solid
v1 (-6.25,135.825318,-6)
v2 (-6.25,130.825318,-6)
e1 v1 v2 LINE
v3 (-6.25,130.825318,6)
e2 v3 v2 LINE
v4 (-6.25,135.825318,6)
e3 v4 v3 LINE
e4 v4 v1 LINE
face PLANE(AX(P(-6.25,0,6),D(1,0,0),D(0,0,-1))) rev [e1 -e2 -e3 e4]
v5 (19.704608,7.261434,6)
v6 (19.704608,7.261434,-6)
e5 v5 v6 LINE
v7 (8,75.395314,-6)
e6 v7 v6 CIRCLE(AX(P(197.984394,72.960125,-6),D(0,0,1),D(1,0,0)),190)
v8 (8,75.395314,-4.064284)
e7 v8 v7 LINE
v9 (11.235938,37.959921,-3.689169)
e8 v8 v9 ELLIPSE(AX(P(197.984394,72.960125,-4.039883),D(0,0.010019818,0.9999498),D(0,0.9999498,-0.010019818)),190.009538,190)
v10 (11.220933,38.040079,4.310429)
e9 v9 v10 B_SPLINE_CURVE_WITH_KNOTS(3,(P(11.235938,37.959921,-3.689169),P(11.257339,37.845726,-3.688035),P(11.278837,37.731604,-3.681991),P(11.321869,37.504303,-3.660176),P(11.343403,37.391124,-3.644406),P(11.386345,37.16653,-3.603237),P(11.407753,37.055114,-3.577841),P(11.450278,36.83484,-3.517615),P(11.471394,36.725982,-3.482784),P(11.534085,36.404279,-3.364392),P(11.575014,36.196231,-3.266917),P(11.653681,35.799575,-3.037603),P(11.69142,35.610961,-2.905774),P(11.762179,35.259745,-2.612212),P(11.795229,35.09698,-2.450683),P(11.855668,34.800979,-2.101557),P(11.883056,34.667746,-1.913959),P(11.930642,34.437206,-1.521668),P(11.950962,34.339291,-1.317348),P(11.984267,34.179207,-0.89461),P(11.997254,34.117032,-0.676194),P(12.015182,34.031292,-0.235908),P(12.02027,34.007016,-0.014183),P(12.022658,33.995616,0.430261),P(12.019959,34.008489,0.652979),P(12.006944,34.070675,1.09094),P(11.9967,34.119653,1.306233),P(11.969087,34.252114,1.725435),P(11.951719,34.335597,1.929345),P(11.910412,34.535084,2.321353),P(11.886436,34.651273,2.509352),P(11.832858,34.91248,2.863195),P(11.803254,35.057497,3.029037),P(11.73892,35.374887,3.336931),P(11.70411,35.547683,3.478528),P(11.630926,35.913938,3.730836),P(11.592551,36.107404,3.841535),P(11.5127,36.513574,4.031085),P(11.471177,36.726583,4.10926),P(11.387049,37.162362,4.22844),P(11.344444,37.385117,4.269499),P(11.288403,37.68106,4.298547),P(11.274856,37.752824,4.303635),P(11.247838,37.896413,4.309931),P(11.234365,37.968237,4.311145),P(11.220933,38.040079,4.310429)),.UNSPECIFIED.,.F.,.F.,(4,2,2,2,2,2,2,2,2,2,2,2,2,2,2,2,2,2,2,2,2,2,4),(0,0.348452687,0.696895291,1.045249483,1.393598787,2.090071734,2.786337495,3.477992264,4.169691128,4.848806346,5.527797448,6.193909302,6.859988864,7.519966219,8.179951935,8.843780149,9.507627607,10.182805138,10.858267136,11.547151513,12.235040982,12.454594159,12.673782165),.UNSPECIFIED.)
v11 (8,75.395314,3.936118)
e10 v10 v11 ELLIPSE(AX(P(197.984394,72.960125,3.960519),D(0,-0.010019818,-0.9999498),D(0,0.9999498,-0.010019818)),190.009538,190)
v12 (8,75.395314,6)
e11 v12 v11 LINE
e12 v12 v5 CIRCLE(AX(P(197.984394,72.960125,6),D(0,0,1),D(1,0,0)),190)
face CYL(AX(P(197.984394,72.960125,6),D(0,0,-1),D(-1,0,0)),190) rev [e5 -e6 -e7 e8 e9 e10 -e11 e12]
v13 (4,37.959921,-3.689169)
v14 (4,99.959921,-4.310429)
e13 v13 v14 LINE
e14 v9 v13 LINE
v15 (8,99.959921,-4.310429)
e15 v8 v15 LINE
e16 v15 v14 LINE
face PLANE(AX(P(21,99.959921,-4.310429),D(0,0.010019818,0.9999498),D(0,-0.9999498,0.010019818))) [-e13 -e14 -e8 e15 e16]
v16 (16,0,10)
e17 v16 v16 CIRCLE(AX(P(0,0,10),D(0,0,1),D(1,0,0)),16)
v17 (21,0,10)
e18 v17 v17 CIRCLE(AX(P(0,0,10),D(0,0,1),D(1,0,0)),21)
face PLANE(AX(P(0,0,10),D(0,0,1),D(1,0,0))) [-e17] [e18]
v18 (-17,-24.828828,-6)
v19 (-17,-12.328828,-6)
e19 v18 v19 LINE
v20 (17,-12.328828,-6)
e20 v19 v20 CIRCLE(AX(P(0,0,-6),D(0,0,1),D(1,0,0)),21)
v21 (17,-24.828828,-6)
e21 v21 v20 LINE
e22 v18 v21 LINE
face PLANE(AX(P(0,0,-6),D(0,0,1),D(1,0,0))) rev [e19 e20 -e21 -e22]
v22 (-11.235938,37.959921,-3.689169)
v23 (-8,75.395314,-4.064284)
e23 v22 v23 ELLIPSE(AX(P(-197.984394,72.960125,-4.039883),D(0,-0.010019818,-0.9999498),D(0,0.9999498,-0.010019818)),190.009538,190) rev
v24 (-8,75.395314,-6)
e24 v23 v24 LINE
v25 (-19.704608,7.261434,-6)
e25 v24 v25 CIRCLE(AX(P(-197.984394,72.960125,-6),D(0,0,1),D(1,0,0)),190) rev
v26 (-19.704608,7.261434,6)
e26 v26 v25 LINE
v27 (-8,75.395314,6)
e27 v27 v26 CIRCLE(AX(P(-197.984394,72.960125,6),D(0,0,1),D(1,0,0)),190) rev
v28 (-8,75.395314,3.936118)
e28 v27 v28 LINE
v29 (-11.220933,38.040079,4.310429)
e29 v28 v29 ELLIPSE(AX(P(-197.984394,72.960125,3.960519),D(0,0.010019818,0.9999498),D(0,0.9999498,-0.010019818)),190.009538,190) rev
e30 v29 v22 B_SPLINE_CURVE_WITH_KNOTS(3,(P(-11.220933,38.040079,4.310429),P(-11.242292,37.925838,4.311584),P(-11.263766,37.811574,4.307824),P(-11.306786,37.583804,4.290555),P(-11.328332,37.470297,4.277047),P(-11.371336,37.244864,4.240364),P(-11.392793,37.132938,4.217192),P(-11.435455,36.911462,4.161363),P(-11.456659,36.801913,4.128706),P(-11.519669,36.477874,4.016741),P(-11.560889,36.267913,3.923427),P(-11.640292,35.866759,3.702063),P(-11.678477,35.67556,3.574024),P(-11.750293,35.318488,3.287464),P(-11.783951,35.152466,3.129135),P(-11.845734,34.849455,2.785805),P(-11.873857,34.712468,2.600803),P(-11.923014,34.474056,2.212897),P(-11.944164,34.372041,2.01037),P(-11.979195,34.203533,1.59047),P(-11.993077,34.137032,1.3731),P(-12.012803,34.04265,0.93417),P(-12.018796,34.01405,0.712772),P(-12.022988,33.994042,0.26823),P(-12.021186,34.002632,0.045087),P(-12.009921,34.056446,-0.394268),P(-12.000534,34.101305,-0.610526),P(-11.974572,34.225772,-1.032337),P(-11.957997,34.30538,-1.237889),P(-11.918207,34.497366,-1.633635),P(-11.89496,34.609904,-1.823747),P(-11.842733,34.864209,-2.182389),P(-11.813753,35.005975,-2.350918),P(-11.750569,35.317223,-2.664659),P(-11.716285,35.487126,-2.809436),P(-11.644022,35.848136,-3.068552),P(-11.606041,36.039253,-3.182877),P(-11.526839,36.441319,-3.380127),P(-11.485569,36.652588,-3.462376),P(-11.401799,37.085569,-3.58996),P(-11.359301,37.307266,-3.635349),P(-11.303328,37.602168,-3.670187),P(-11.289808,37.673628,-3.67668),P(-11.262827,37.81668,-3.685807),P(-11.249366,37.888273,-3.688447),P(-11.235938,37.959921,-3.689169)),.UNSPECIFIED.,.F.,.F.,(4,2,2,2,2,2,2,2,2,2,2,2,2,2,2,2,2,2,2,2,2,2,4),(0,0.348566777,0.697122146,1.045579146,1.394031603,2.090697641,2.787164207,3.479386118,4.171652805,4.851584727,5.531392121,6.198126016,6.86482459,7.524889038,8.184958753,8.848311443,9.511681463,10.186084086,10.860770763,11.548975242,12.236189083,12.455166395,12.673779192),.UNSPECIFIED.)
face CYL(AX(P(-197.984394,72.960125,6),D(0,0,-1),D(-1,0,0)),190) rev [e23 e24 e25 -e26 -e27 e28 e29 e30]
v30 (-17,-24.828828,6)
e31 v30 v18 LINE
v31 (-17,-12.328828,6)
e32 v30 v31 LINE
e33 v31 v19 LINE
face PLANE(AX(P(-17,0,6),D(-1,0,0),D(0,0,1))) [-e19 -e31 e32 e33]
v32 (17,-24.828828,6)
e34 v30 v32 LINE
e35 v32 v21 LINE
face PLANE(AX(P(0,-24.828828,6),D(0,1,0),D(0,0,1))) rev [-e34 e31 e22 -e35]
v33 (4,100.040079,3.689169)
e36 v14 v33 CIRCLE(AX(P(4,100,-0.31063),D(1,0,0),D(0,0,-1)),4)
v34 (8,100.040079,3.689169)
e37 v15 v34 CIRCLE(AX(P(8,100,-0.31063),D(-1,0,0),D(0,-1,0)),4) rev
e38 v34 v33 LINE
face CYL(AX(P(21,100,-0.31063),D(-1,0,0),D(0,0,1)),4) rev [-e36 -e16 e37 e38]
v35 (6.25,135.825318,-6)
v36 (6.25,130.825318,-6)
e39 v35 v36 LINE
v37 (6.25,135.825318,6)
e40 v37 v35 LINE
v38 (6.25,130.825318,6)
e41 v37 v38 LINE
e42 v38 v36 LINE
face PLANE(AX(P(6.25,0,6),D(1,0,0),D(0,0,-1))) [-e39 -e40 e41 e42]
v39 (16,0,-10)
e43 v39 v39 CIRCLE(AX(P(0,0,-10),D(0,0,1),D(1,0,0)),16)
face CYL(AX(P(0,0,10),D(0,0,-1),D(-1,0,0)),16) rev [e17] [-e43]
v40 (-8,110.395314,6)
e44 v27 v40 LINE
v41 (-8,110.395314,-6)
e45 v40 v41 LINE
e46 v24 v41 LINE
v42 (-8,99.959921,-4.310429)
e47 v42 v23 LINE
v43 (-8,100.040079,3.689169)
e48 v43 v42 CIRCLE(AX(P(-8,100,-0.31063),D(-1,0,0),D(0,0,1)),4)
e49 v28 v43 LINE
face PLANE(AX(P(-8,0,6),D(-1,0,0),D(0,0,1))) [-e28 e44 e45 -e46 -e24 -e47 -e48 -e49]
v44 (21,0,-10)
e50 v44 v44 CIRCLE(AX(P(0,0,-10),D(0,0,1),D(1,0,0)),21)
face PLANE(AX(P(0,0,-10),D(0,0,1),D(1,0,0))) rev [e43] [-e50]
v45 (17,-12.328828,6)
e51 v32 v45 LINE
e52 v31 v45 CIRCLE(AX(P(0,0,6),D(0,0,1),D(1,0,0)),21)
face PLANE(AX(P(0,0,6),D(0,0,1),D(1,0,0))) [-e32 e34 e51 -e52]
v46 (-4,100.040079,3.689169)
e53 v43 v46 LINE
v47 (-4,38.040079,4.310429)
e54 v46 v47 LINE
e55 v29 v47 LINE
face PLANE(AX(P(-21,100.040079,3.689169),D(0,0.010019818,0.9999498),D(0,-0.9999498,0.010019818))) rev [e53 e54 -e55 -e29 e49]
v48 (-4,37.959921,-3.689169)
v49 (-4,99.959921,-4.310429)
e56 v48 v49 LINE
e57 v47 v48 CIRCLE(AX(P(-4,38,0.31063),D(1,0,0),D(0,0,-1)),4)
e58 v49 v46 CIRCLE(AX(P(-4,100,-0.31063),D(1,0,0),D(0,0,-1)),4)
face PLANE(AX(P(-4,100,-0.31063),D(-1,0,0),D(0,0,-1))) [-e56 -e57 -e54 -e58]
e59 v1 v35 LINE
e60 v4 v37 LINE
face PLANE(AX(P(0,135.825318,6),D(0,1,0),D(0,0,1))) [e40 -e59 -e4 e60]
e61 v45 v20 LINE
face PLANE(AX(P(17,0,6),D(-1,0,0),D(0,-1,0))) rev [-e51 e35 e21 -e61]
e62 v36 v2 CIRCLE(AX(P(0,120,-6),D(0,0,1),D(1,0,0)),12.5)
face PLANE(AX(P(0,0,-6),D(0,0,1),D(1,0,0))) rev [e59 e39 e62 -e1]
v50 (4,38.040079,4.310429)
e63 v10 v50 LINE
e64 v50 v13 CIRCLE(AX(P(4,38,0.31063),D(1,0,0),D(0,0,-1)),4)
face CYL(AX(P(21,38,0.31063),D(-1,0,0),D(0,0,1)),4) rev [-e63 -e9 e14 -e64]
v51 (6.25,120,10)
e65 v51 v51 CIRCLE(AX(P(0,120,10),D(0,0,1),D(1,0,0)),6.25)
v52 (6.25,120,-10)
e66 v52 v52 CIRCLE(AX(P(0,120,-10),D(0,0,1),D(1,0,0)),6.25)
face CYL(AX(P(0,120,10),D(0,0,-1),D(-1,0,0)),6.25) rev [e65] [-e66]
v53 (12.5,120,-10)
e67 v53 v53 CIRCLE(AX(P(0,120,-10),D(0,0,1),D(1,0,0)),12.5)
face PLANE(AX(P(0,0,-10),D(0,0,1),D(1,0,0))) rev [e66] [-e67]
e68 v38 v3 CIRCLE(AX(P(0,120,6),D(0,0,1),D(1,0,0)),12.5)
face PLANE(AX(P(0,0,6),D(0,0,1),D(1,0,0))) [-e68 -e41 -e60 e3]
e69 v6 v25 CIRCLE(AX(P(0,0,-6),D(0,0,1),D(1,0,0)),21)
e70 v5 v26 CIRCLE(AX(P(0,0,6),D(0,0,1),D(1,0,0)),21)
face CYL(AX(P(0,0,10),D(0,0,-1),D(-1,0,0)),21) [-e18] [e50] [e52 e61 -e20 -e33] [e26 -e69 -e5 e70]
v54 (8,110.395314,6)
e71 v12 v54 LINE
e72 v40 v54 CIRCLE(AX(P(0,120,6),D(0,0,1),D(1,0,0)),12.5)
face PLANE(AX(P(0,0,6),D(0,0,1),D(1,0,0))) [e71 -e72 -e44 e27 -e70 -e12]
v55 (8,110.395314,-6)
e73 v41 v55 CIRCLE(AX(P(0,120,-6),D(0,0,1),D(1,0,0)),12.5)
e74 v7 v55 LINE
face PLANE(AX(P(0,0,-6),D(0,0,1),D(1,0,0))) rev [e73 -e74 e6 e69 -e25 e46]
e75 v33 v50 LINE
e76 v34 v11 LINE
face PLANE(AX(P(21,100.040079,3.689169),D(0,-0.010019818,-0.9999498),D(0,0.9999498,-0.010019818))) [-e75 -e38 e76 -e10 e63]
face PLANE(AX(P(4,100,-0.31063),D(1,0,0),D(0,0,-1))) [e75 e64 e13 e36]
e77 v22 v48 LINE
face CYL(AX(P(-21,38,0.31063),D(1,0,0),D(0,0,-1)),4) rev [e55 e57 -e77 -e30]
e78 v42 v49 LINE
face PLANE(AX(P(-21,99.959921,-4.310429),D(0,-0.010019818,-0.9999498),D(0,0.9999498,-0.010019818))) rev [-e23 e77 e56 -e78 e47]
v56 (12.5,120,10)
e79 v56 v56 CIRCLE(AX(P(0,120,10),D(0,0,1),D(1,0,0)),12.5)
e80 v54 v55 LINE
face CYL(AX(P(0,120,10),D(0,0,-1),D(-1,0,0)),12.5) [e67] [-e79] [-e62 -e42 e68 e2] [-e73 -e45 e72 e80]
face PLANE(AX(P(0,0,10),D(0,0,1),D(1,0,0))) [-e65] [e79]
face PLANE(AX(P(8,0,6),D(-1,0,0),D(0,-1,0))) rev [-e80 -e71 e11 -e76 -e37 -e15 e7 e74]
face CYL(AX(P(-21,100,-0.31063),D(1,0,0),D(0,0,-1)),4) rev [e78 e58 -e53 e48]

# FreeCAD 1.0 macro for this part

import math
import FreeCAD as App
import Part
import Sketcher

doc = App.newDocument("Part")
body = doc.addObject("PartDesign::Body", "Body")
body.AllowCompound = True

sketch1 = body.newObject("Sketcher::SketchObject", "Sketch")
sketch1.AttachmentSupport = (doc.getObject("XY_Plane"), [""])
sketch1.MapMode = "FlatFace"
sketch1.addGeometry([
    Part.ArcOfCircle(Part.Circle(App.Vector(0, 120, 0), App.Vector(0, 0, 1), 12.5), math.radians(-50.208181), math.radians(0)),
    Part.ArcOfCircle(Part.Circle(App.Vector(0, 120, 0), App.Vector(0, 0, 1), 12.5), math.radians(0), math.radians(60)),
    Part.ArcOfCircle(Part.Circle(App.Vector(0, 120, 0), App.Vector(0, 0, 1), 12.5), math.radians(60), math.radians(90)),
    Part.ArcOfCircle(Part.Circle(App.Vector(0, 120, 0), App.Vector(0, 0, 1), 12.5), math.radians(90), math.radians(120)),
    Part.ArcOfCircle(Part.Circle(App.Vector(0, 120, 0), App.Vector(0, 0, 1), 12.5), math.radians(120), math.radians(230.208181)),
    Part.ArcOfCircle(Part.Circle(App.Vector(0, 120, 0), App.Vector(0, 0, 1), 12.5), math.radians(-129.79182), math.radians(-90)),
    Part.ArcOfCircle(Part.Circle(App.Vector(0, 120, 0), App.Vector(0, 0, 1), 12.5), math.radians(-90), math.radians(-50.20818)),
    Part.ArcOfCircle(Part.Circle(App.Vector(0, 120, 0), App.Vector(0, 0, 1), 6.25), math.radians(-90), math.radians(0)),
    Part.ArcOfCircle(Part.Circle(App.Vector(0, 120, 0), App.Vector(0, 0, 1), 6.25), math.radians(90), math.radians(270)),
    Part.ArcOfCircle(Part.Circle(App.Vector(0, 120, 0), App.Vector(0, 0, 1), 6.25), math.radians(0), math.radians(90)),
    Part.ArcOfCircle(Part.Circle(App.Vector(0, 0, 0), App.Vector(0, 0, 1), 21), math.radians(-35.950568), math.radians(0)),
    Part.ArcOfCircle(Part.Circle(App.Vector(0, 0, 0), App.Vector(0, 0, 1), 21), math.radians(0), math.radians(20.229575)),
    Part.ArcOfCircle(Part.Circle(App.Vector(0, 0, 0), App.Vector(0, 0, 1), 21), math.radians(20.229575), math.radians(90)),
    Part.ArcOfCircle(Part.Circle(App.Vector(0, 0, 0), App.Vector(0, 0, 1), 21), math.radians(90), math.radians(159.770425)),
    Part.ArcOfCircle(Part.Circle(App.Vector(0, 0, 0), App.Vector(0, 0, 1), 21), math.radians(159.770425), math.radians(215.950568)),
    Part.ArcOfCircle(Part.Circle(App.Vector(0, 0, 0), App.Vector(0, 0, 1), 21), math.radians(-144.049432), math.radians(-90)),
    Part.ArcOfCircle(Part.Circle(App.Vector(0, 0, 0), App.Vector(0, 0, 1), 21), math.radians(-90), math.radians(-35.950568)),
    Part.ArcOfCircle(Part.Circle(App.Vector(0, 0, 0), App.Vector(0, 0, 1), 16), math.radians(-90), math.radians(0)),
    Part.ArcOfCircle(Part.Circle(App.Vector(0, 0, 0), App.Vector(0, 0, 1), 16), math.radians(90), math.radians(270)),
    Part.ArcOfCircle(Part.Circle(App.Vector(0, 0, 0), App.Vector(0, 0, 1), 16), math.radians(0), math.radians(90)),
], False)
sketch1.addConstraint([
    Sketcher.Constraint("Tangent", 0, 2, 1, 1),
    Sketcher.Constraint("Tangent", 1, 2, 2, 1),
    Sketcher.Constraint("Tangent", 2, 2, 3, 1),
    Sketcher.Constraint("Tangent", 3, 2, 4, 1),
    Sketcher.Constraint("Tangent", 4, 2, 5, 1),
    Sketcher.Constraint("Tangent", 5, 2, 6, 1),
    Sketcher.Constraint("Tangent", 6, 2, 0, 1),
    Sketcher.Constraint("Tangent", 7, 1, 8, 2),
    Sketcher.Constraint("Tangent", 8, 1, 9, 2),
    Sketcher.Constraint("Tangent", 9, 1, 7, 2),
    Sketcher.Constraint("Tangent", 10, 2, 11, 1),
    Sketcher.Constraint("Tangent", 11, 2, 12, 1),
    Sketcher.Constraint("Tangent", 12, 2, 13, 1),
    Sketcher.Constraint("Tangent", 13, 2, 14, 1),
    Sketcher.Constraint("Tangent", 14, 2, 15, 1),
    Sketcher.Constraint("Tangent", 15, 2, 16, 1),
    Sketcher.Constraint("Tangent", 16, 2, 10, 1),
    Sketcher.Constraint("Tangent", 17, 1, 18, 2),
    Sketcher.Constraint("Tangent", 18, 1, 19, 2),
    Sketcher.Constraint("Tangent", 19, 1, 17, 2),
    Sketcher.Constraint("Coincident", 10, 3, -1, 1),
    Sketcher.Constraint("Coincident", 12, 3, -1, 1),
    Sketcher.Constraint("Coincident", 14, 3, -1, 1),
    Sketcher.Constraint("Coincident", 17, 3, -1, 1),
    Sketcher.Constraint("Coincident", 2, 3, 0, 3),
    Sketcher.Constraint("Coincident", 4, 3, 0, 3),
    Sketcher.Constraint("Coincident", 7, 3, 0, 3),
    Sketcher.Constraint("Symmetric", 1, 2, 3, 2, -2),
    Sketcher.Constraint("PointOnObject", 2, 2, -2),
    Sketcher.Constraint("PointOnObject", 5, 2, -2),
    Sketcher.Constraint("PointOnObject", 7, 1, -2),
    Sketcher.Constraint("PointOnObject", 8, 1, -2),
    Sketcher.Constraint("PointOnObject", 10, 2, -1),
    Sketcher.Constraint("PointOnObject", 12, 2, -2),
    Sketcher.Constraint("PointOnObject", 15, 2, -2),
    Sketcher.Constraint("PointOnObject", 17, 1, -2),
    Sketcher.Constraint("PointOnObject", 18, 1, -2),
    Sketcher.Constraint("PointOnObject", 19, 1, -1),
    Sketcher.Constraint("Horizontal", 9, 3, 0, 2),
    Sketcher.Constraint("Horizontal", 4, 2, 6, 2),
    Sketcher.Constraint("Horizontal", 0, 2, 9, 1),
    Sketcher.Constraint("Horizontal", 11, 2, 13, 2),
    Sketcher.Constraint("Horizontal", 14, 2, 16, 2),
    Sketcher.Constraint("Vertical", 1, 2, 9, 1),
    Sketcher.Constraint("Radius", 10, 21.0),
    Sketcher.Constraint("Radius", 17, 16.0),
    Sketcher.Constraint("Radius", 0, 12.5),
    Sketcher.Constraint("Radius", 7, 6.25),
    Sketcher.Constraint("DistanceY", -1, 1, 0, 3, 120.0),
    Sketcher.Constraint("DistanceX", 4, 2, -1, 1, 8.0),
    Sketcher.Constraint("DistanceX", 14, 2, -1, 1, 17.0),
    Sketcher.Constraint("DistanceX", -1, 1, 11, 2, 19.704608),
])
pad1 = body.newObject("PartDesign::Pad", "Pad")
pad1.Profile = sketch1
pad1.Length = 20
pad1.Midplane = True

sketch2 = body.newObject("Sketcher::SketchObject", "Sketch001")
sketch2.AttachmentSupport = (doc.getObject("XY_Plane"), [""])
sketch2.MapMode = "FlatFace"
sketch2.addGeometry([
    Part.ArcOfCircle(Part.Circle(App.Vector(0, 120, 0), App.Vector(0, 0, 1), 12.5), math.radians(-90), math.radians(-50.20818)),
    Part.ArcOfCircle(Part.Circle(App.Vector(0, 120, 0), App.Vector(0, 0, 1), 12.5), math.radians(-129.79182), math.radians(-90)),
    Part.LineSegment(App.Vector(-8, 110.395314, 0), App.Vector(-8, 75.395314, 0)),
    Part.ArcOfCircle(Part.Circle(App.Vector(-197.984394, 72.960125, 0), App.Vector(0, 0, 1), 190), math.radians(-20.229575), math.radians(0.734368)),
    Part.ArcOfCircle(Part.Circle(App.Vector(0, 0, 0), App.Vector(0, 0, 1), 21), math.radians(90), math.radians(159.770425)),
    Part.ArcOfCircle(Part.Circle(App.Vector(0, 0, 0), App.Vector(0, 0, 1), 21), math.radians(20.229575), math.radians(90)),
    Part.ArcOfCircle(Part.Circle(App.Vector(197.984394, 72.960125, 0), App.Vector(0, 0, 1), 190), math.radians(179.265632), math.radians(200.229575)),
    Part.LineSegment(App.Vector(8, 75.395314, 0), App.Vector(8, 110.395314, 0)),
    Part.ArcOfCircle(Part.Circle(App.Vector(0, 0, 0), App.Vector(0, 0, 1), 21), math.radians(-90), math.radians(-35.950568)),
    Part.ArcOfCircle(Part.Circle(App.Vector(0, 0, 0), App.Vector(0, 0, 1), 21), math.radians(-144.049432), math.radians(-90)),
    Part.LineSegment(App.Vector(-17, -12.328828, 0), App.Vector(-17, -24.828828, 0)),
    Part.LineSegment(App.Vector(-17, -24.828828, 0), App.Vector(17, -24.828828, 0)),
    Part.LineSegment(App.Vector(17, -24.828828, 0), App.Vector(17, -12.328828, 0)),
    Part.LineSegment(App.Vector(6.25, 135.825318, 0), App.Vector(-6.25, 135.825318, 0)),
    Part.LineSegment(App.Vector(-6.25, 135.825318, 0), App.Vector(-6.25, 130.825318, 0)),
    Part.ArcOfCircle(Part.Circle(App.Vector(0, 120, 0), App.Vector(0, 0, 1), 12.5), math.radians(90), math.radians(120)),
    Part.ArcOfCircle(Part.Circle(App.Vector(0, 120, 0), App.Vector(0, 0, 1), 12.5), math.radians(60), math.radians(90)),
    Part.LineSegment(App.Vector(6.25, 130.825318, 0), App.Vector(6.25, 135.825318, 0)),
], False)
sketch2.addConstraint([
    Sketcher.Constraint("Tangent", 0, 1, 1, 2),
    Sketcher.Constraint("Coincident", 1, 1, 2, 1),
    Sketcher.Constraint("Coincident", 2, 2, 3, 2),
    Sketcher.Constraint("Tangent", 3, 1, 4, 2),
    Sketcher.Constraint("Tangent", 4, 1, 5, 2),
    Sketcher.Constraint("Tangent", 5, 1, 6, 2),
    Sketcher.Constraint("Coincident", 6, 1, 7, 1),
    Sketcher.Constraint("Coincident", 7, 2, 0, 2),
    Sketcher.Constraint("Tangent", 8, 1, 9, 2),
    Sketcher.Constraint("Coincident", 9, 1, 10, 1),
    Sketcher.Constraint("Coincident", 10, 2, 11, 1),
    Sketcher.Constraint("Coincident", 11, 2, 12, 1),
    Sketcher.Constraint("Coincident", 12, 2, 8, 2),
    Sketcher.Constraint("Coincident", 13, 2, 14, 1),
    Sketcher.Constraint("Coincident", 14, 2, 15, 2),
    Sketcher.Constraint("Tangent", 15, 1, 16, 2),
    Sketcher.Constraint("Coincident", 16, 1, 17, 1),
    Sketcher.Constraint("Coincident", 17, 2, 13, 1),
    Sketcher.Constraint("Vertical", 2),
    Sketcher.Constraint("Vertical", 7),
    Sketcher.Constraint("Vertical", 10),
    Sketcher.Constraint("Horizontal", 11),
    Sketcher.Constraint("Vertical", 12),
    Sketcher.Constraint("Horizontal", 13),
    Sketcher.Constraint("Vertical", 14),
    Sketcher.Constraint("Vertical", 17),
    Sketcher.Constraint("Coincident", 4, 3, -1, 1),
    Sketcher.Constraint("Coincident", 8, 3, -1, 1),
    Sketcher.Constraint("Coincident", 15, 3, 0, 3),
    Sketcher.Constraint("Equal", 0, 1),
    Sketcher.Constraint("Equal", 4, 5),
    Sketcher.Constraint("Equal", 3, 6),
    Sketcher.Constraint("Equal", 5, 8),
    Sketcher.Constraint("Equal", 8, 9),
    Sketcher.Constraint("Equal", 1, 15),
    Sketcher.Constraint("Equal", 15, 16),
    Sketcher.Constraint("Symmetric", 2, 2, 6, 1, -2),
    Sketcher.Constraint("Symmetric", 14, 2, 16, 1, -2),
    Sketcher.Constraint("PointOnObject", 0, 1, -2),
    Sketcher.Constraint("PointOnObject", 4, 1, -2),
    Sketcher.Constraint("PointOnObject", 8, 1, -2),
    Sketcher.Constraint("PointOnObject", 15, 1, -2),
    Sketcher.Constraint("Horizontal", 9, 1, 12, 2),
    Sketcher.Constraint("Equal", 13, 10),
    Sketcher.Constraint("Radius", 3, 190.0),
    Sketcher.Constraint("Radius", 4, 21.0),
    Sketcher.Constraint("Radius", 0, 12.5),
    Sketcher.Constraint("DistanceX", 11, 1, 11, 2, 34.0),
    Sketcher.Constraint("DistanceY", 2, 2, 2, 1, 35.0),
    Sketcher.Constraint("DistanceY", 14, 2, 14, 1, 5.0),
    Sketcher.Constraint("DistanceX", 13, 2, 13, 1, 12.5),
    Sketcher.Constraint("DistanceY", -1, 1, 0, 3, 120.0),
    Sketcher.Constraint("DistanceX", 1, 1, -1, 1, 8.0),
])
pad2 = body.newObject("PartDesign::Pad", "Pad001")
pad2.Profile = sketch2
pad2.Length = 12
pad2.Midplane = True

sketch3 = body.newObject("Sketcher::SketchObject", "Sketch002")
sketch3.AttachmentSupport = (doc.getObject("YZ_Plane"), [""])
sketch3.MapMode = "FlatFace"
sketch3.AttachmentOffset = App.Placement(App.Vector(0, 0, 4), App.Rotation())
sketch3.addGeometry([
    Part.LineSegment(App.Vector(37.959921, -3.689169, 0), App.Vector(99.959921, -4.310429, 0)),
    Part.ArcOfCircle(Part.Circle(App.Vector(100, -0.31063, 0), App.Vector(0, 0, 1), 4), math.radians(-90.574103), math.radians(89.425897)),
    Part.LineSegment(App.Vector(100.040079, 3.689169, 0), App.Vector(38.040079, 4.310429, 0)),
    Part.ArcOfCircle(Part.Circle(App.Vector(38, 0.31063, 0), App.Vector(0, 0, 1), 4), math.radians(89.425897), math.radians(269.425897)),
], False)
sketch3.addConstraint([
    Sketcher.Constraint("Tangent", 0, 2, 1, 1),
    Sketcher.Constraint("Tangent", 1, 2, 2, 1),
    Sketcher.Constraint("Tangent", 2, 2, 3, 1),
    Sketcher.Constraint("Tangent", 3, 2, 0, 1),
    Sketcher.Constraint("Equal", 1, 3),
    Sketcher.Constraint("Radius", 1, 4.0),
    Sketcher.Constraint("DistanceX", -1, 1, 1, 3, 100.0),
    Sketcher.Constraint("DistanceX", -1, 1, 3, 3, 38.0),
    Sketcher.Constraint("DistanceY", 1, 3, -1, 1, 0.31063),
    Sketcher.Constraint("DistanceY", -1, 1, 3, 3, 0.31063),
])
pocket1 = body.newObject("PartDesign::Pocket", "Pocket")
pocket1.Profile = sketch3
pocket1.Length = 140.802456
pocket1.Reversed = True
doc.recompute()

mirrored = body.newObject("PartDesign::Mirrored", "Mirrored")
mirrored.Originals = [pocket1]
mirrored.MirrorPlane = (doc.getObject("YZ_Plane"), [""])
body.Tip = mirrored

doc.recompute()
